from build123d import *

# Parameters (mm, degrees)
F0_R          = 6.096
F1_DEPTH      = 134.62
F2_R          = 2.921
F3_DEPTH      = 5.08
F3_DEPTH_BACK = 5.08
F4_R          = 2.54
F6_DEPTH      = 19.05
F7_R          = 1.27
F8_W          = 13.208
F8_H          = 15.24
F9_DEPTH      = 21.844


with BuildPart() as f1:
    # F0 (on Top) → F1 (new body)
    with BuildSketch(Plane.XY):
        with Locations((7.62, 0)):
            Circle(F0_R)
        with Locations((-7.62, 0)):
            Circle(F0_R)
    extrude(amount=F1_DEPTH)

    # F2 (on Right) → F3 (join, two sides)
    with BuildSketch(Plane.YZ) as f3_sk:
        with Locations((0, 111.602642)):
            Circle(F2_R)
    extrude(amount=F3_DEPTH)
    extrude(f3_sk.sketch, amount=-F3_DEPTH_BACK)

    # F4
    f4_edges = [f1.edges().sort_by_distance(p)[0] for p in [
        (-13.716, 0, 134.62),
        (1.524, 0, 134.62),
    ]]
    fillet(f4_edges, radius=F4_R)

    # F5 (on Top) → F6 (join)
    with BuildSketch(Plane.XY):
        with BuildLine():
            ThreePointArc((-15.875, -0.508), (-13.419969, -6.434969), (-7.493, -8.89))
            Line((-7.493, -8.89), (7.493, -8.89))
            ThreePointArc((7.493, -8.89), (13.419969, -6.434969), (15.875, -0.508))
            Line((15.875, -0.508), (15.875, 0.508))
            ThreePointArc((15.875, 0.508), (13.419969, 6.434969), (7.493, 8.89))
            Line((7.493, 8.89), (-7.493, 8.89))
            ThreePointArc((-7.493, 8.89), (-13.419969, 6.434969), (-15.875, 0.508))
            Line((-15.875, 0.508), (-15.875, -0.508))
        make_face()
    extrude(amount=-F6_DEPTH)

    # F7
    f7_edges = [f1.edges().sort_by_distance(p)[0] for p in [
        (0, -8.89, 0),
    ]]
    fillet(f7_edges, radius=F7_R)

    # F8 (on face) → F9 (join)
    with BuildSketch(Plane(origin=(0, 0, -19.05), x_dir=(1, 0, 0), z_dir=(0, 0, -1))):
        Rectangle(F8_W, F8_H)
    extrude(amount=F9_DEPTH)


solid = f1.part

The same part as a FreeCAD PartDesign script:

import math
import FreeCAD as App
import Part
import Sketcher
from FreeCAD import Vector
Q = App.Units.Quantity


def edges_at(feature, points):
    """Names of the edges that pass closest to the given points."""
    edges = feature.Shape.Edges
    near = lambda p: min(range(len(edges)), key=lambda i: edges[i].distToShape(Part.Vertex(*p))[0])
    return sorted({f"Edge{near(p) + 1}" for p in points})


def add_polygon(sketch, points):
    """Adds a closed chain of lines whose ends are joined by coincident constraints."""
    first, n = sketch.GeometryCount, len(points)
    for a, b in zip(points, points[1:] + points[:1]):
        sketch.addGeometry(Part.LineSegment(App.Vector(*a, 0), App.Vector(*b, 0)), False)
    for i in range(n):
        sketch.addConstraint(Sketcher.Constraint("Coincident", first + i, 2, first + (i + 1) % n, 1))

doc = App.newDocument("Part")
body = doc.addObject("PartDesign::Body", "Body")
body.AllowCompound = True

# Sketch on XY plane
sketch1 = doc.addObject("Sketcher::SketchObject", "Sketch")
body.addObject(sketch1)
sketch1.AttachmentSupport = (doc.XY_Plane, [""])
sketch1.MapMode = "FlatFace"
sketch1.addGeometry([
    Part.Circle(Vector(8, 0, 0), Vector(0, 0, 1), 6),
    Part.Circle(Vector(-8, 0, 0), Vector(0, 0, 1), 6),
], False)
sketch1.addConstraint([
    Sketcher.Constraint("Equal", 0, 1),
    Sketcher.Constraint("Symmetric", 0, 3, 1, 3, -1, 1),
    Sketcher.Constraint("PointOnObject", 0, 3, -1),
    Sketcher.Constraint("Diameter", 0, Q("0.48 in")),
    Sketcher.Constraint("DistanceX", -1, 1, 0, 3, Q("0.3 in")),
])
pad1 = doc.addObject("PartDesign::Pad", "Pad")
body.addObject(pad1)
pad1.Profile = sketch1
pad1.Length = Q("5.3 in")

# Sketch on YZ plane
sketch2 = doc.addObject("Sketcher::SketchObject", "Sketch001")
body.addObject(sketch2)
sketch2.AttachmentSupport = (doc.YZ_Plane, [""])
sketch2.MapMode = "FlatFace"
sketch2.addGeometry(Part.Circle(Vector(0, 111.6, 0), Vector(0, 0, 1), 2.9), False)
sketch2.addConstraint([
    Sketcher.Constraint("PointOnObject", 0, 3, -2),
    Sketcher.Constraint("Diameter", 0, Q("0.23 in")),
    Sketcher.Constraint("DistanceY", -1, 1, 0, 3, Q("111.602642 mm")),
])
pad2 = doc.addObject("PartDesign::Pad", "Pad001")
body.addObject(pad2)
pad2.Profile = sketch2
pad2.Type = "TwoLengths"
pad2.Length = Q("0.2 in")
pad2.Length2 = Q("0.2 in")
doc.recompute()

fillet = doc.addObject("PartDesign::Fillet", "Fillet")
body.addObject(fillet)
fillet.Base = (pad2, edges_at(pad2, [(-13.716, 0, 134.62), (1.524, 0, 134.62)]))
fillet.Radius = Q("0.1 in")

# Sketch on XY plane
sketch3 = doc.addObject("Sketcher::SketchObject", "Sketch002")
body.addObject(sketch3)
sketch3.AttachmentSupport = (doc.XY_Plane, [""])
sketch3.MapMode = "FlatFace"
sketch3.addGeometry([
    Part.ArcOfCircle(Part.Circle(Vector(-7.5, -0.5, 0), Vector(0, 0, 1), 8.4), math.radians(-180), math.radians(-90)),  # 0
    Part.LineSegment(Vector(-7.5, -8.9, 0), Vector(7.5, -8.9, 0)),  # 1
    Part.ArcOfCircle(Part.Circle(Vector(7.5, -0.5, 0), Vector(0, 0, 1), 8.4), math.radians(-90), math.radians(0)),  # 2
    Part.LineSegment(Vector(15.9, -0.5, 0), Vector(15.9, 0.5, 0)),  # 3
    Part.ArcOfCircle(Part.Circle(Vector(7.5, 0.5, 0), Vector(0, 0, 1), 8.4), math.radians(0), math.radians(90)),  # 4
    Part.LineSegment(Vector(7.5, 8.9, 0), Vector(-7.5, 8.9, 0)),  # 5
    Part.ArcOfCircle(Part.Circle(Vector(-7.5, 0.5, 0), Vector(0, 0, 1), 8.4), math.radians(90), math.radians(180)),  # 6
    Part.LineSegment(Vector(-15.9, 0.5, 0), Vector(-15.9, -0.5, 0)),  # 7
], False)
sketch3.addConstraint([
    Sketcher.Constraint("Tangent", 0, 2, 1, 1),
    Sketcher.Constraint("Tangent", 1, 2, 2, 1),
    Sketcher.Constraint("Tangent", 2, 2, 3, 1),
    Sketcher.Constraint("Tangent", 3, 2, 4, 1),
    Sketcher.Constraint("Tangent", 4, 2, 5, 1),
    Sketcher.Constraint("Tangent", 5, 2, 6, 1),
    Sketcher.Constraint("Tangent", 6, 2, 7, 1),
    Sketcher.Constraint("Tangent", 7, 2, 0, 1),
    Sketcher.Constraint("Horizontal", 1),
    Sketcher.Constraint("Vertical", 3),
    Sketcher.Constraint("Horizontal", 5),
    Sketcher.Constraint("Vertical", 7),
    Sketcher.Constraint("Equal", 0, 2),
    Sketcher.Constraint("Equal", 2, 4),
    Sketcher.Constraint("Equal", 4, 6),
    Sketcher.Constraint("Symmetric", 0, 3, 4, 3, -1, 1),
    Sketcher.Constraint("Radius", 0, Q("0.33 in")),
    Sketcher.Constraint("DistanceX", 1, 1, 1, 2, Q("0.59 in")),
    Sketcher.Constraint("DistanceY", 3, 1, 3, 2, Q("0.04 in")),
])
pad3 = doc.addObject("PartDesign::Pad", "Pad002")
body.addObject(pad3)
pad3.Profile = sketch3
pad3.Length = Q("0.75 in")
pad3.Reversed = True
doc.recompute()

fillet2 = doc.addObject("PartDesign::Fillet", "Fillet001")
body.addObject(fillet2)
fillet2.Base = (pad3, edges_at(pad3, [(0, -8.89, 0)]))
fillet2.Radius = Q("0.05 in")

# Sketch on XY plane
sketch4 = doc.addObject("Sketcher::SketchObject", "Sketch003")
body.addObject(sketch4)
sketch4.AttachmentSupport = (doc.XY_Plane, [""])
sketch4.MapMode = "FlatFace"
sketch4.AttachmentOffset = App.Placement(Vector(0, 0, -0.75 * 25.4), App.Rotation())
add_polygon(sketch4, [(-7, -8), (-7, 8), (7, 8), (7, -8)])  # lines 0-3
sketch4.addConstraint([
    Sketcher.Constraint("Vertical", 0),
    Sketcher.Constraint("Horizontal", 1),
    Sketcher.Constraint("Vertical", 2),
    Sketcher.Constraint("Horizontal", 3),
    Sketcher.Constraint("Symmetric", 0, 2, 2, 2, -1, 1),
    Sketcher.Constraint("DistanceY", 0, 1, 0, 2, Q("0.6 in")),
    Sketcher.Constraint("DistanceX", 1, 1, 1, 2, Q("0.52 in")),
])
pad4 = doc.addObject("PartDesign::Pad", "Pad003")
body.addObject(pad4)
pad4.Profile = sketch4
pad4.Length = Q("0.86 in")
pad4.Reversed = True

doc.recompute()
